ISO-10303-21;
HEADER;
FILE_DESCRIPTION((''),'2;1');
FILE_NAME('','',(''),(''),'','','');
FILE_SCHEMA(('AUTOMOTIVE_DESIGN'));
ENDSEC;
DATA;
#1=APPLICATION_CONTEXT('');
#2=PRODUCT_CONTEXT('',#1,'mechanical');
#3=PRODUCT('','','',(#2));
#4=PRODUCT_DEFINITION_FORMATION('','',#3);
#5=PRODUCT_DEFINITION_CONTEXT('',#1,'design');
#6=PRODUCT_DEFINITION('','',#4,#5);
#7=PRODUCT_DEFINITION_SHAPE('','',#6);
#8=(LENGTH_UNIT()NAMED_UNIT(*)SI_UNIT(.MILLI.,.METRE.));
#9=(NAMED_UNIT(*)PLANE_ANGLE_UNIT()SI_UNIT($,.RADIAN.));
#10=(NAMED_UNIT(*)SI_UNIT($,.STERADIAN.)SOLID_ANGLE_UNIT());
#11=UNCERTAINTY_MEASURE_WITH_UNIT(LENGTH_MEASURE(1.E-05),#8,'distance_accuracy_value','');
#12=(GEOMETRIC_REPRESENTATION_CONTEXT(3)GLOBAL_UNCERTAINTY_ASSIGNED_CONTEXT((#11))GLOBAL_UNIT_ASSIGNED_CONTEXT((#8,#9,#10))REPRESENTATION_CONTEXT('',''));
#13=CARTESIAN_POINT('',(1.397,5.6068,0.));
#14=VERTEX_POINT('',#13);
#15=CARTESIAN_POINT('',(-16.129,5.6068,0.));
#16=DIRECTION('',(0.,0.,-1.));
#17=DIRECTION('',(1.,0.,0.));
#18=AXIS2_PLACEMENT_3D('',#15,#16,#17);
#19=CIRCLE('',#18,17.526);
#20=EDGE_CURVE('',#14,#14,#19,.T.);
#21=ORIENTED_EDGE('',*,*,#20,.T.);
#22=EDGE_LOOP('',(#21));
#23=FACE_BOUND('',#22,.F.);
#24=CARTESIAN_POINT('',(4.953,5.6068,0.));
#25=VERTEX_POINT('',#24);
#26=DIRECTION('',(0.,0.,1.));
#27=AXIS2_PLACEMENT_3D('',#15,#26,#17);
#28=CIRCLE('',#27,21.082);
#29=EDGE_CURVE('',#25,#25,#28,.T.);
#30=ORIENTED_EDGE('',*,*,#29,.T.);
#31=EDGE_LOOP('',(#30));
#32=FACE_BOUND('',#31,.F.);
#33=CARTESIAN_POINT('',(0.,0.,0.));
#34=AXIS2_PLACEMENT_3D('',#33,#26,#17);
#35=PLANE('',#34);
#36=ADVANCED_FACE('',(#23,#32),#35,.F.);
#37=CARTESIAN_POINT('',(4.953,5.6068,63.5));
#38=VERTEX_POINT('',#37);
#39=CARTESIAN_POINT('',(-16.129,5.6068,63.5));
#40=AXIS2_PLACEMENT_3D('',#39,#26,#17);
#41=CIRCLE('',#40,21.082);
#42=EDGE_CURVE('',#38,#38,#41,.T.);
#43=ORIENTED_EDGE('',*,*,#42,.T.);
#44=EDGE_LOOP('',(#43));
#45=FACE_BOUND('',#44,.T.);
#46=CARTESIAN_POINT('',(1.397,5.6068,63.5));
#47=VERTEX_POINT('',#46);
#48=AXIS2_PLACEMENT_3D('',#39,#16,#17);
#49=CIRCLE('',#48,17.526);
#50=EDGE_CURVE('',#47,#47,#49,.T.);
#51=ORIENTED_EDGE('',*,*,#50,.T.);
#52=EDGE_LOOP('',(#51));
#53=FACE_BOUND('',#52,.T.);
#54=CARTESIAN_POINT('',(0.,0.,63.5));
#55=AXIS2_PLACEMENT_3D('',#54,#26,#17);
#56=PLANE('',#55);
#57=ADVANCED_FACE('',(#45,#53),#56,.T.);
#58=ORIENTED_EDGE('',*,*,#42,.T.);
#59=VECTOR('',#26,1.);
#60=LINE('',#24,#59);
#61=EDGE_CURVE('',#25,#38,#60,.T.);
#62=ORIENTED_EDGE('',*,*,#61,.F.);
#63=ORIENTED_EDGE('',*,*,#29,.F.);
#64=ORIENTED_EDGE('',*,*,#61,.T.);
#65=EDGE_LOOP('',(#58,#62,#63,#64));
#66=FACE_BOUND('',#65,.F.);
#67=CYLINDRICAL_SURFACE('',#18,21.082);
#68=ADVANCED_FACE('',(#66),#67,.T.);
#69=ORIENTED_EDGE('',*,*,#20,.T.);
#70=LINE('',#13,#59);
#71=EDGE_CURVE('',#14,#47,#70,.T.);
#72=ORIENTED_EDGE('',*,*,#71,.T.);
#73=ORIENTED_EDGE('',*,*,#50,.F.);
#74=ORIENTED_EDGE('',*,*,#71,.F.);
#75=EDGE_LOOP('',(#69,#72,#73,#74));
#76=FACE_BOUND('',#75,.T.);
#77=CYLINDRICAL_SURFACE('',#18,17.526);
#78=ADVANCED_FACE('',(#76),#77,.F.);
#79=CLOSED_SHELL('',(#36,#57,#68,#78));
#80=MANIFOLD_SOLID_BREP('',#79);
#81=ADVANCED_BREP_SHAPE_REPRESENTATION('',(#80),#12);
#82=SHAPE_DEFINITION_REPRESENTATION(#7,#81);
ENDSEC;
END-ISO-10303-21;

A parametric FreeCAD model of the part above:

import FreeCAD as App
import Part
import Sketcher
from FreeCAD import Vector
Q = App.Units.Quantity


def faces_at(feature, points):
    """Names of the faces that lie closest to the given points."""
    faces = feature.Shape.Faces
    near = lambda p: min(range(len(faces)), key=lambda i: faces[i].distToShape(Part.Vertex(*p))[0])
    return sorted({f"Face{near(p) + 1}" for p in points})

doc = App.newDocument("Part")
body = doc.addObject("PartDesign::Body", "Body")

# Sketch on XY plane
sketch1 = doc.addObject("Sketcher::SketchObject", "Sketch")
body.addObject(sketch1)
sketch1.AttachmentSupport = (doc.XY_Plane, [""])
sketch1.MapMode = "FlatFace"
sketch1.addGeometry(Part.Circle(Vector(-16, 6, 0), Vector(0, 0, 1), 21), False)
sketch1.addConstraint([
    Sketcher.Constraint("Diameter", 0, Q("1.66 in")),
    Sketcher.Constraint("DistanceX", 0, 3, -1, 1, Q("0.635 in")),
    Sketcher.Constraint("DistanceY", -1, 1, 0, 3, Q("5.6068 mm")),
])
pad1 = doc.addObject("PartDesign::Pad", "Pad")
body.addObject(pad1)
pad1.Profile = sketch1
pad1.Length = Q("2.5 in")
doc.recompute()

thickness = doc.addObject("PartDesign::Thickness", "Thickness")
body.addObject(thickness)
thickness.Base = (pad1, faces_at(pad1, [(-10.268, -0.637, 0), (-10.268, -0.637, 63.5)]))
thickness.Value = Q("0.14 in")
thickness.Reversed = True
thickness.Join = "Intersection"

doc.recompute()
